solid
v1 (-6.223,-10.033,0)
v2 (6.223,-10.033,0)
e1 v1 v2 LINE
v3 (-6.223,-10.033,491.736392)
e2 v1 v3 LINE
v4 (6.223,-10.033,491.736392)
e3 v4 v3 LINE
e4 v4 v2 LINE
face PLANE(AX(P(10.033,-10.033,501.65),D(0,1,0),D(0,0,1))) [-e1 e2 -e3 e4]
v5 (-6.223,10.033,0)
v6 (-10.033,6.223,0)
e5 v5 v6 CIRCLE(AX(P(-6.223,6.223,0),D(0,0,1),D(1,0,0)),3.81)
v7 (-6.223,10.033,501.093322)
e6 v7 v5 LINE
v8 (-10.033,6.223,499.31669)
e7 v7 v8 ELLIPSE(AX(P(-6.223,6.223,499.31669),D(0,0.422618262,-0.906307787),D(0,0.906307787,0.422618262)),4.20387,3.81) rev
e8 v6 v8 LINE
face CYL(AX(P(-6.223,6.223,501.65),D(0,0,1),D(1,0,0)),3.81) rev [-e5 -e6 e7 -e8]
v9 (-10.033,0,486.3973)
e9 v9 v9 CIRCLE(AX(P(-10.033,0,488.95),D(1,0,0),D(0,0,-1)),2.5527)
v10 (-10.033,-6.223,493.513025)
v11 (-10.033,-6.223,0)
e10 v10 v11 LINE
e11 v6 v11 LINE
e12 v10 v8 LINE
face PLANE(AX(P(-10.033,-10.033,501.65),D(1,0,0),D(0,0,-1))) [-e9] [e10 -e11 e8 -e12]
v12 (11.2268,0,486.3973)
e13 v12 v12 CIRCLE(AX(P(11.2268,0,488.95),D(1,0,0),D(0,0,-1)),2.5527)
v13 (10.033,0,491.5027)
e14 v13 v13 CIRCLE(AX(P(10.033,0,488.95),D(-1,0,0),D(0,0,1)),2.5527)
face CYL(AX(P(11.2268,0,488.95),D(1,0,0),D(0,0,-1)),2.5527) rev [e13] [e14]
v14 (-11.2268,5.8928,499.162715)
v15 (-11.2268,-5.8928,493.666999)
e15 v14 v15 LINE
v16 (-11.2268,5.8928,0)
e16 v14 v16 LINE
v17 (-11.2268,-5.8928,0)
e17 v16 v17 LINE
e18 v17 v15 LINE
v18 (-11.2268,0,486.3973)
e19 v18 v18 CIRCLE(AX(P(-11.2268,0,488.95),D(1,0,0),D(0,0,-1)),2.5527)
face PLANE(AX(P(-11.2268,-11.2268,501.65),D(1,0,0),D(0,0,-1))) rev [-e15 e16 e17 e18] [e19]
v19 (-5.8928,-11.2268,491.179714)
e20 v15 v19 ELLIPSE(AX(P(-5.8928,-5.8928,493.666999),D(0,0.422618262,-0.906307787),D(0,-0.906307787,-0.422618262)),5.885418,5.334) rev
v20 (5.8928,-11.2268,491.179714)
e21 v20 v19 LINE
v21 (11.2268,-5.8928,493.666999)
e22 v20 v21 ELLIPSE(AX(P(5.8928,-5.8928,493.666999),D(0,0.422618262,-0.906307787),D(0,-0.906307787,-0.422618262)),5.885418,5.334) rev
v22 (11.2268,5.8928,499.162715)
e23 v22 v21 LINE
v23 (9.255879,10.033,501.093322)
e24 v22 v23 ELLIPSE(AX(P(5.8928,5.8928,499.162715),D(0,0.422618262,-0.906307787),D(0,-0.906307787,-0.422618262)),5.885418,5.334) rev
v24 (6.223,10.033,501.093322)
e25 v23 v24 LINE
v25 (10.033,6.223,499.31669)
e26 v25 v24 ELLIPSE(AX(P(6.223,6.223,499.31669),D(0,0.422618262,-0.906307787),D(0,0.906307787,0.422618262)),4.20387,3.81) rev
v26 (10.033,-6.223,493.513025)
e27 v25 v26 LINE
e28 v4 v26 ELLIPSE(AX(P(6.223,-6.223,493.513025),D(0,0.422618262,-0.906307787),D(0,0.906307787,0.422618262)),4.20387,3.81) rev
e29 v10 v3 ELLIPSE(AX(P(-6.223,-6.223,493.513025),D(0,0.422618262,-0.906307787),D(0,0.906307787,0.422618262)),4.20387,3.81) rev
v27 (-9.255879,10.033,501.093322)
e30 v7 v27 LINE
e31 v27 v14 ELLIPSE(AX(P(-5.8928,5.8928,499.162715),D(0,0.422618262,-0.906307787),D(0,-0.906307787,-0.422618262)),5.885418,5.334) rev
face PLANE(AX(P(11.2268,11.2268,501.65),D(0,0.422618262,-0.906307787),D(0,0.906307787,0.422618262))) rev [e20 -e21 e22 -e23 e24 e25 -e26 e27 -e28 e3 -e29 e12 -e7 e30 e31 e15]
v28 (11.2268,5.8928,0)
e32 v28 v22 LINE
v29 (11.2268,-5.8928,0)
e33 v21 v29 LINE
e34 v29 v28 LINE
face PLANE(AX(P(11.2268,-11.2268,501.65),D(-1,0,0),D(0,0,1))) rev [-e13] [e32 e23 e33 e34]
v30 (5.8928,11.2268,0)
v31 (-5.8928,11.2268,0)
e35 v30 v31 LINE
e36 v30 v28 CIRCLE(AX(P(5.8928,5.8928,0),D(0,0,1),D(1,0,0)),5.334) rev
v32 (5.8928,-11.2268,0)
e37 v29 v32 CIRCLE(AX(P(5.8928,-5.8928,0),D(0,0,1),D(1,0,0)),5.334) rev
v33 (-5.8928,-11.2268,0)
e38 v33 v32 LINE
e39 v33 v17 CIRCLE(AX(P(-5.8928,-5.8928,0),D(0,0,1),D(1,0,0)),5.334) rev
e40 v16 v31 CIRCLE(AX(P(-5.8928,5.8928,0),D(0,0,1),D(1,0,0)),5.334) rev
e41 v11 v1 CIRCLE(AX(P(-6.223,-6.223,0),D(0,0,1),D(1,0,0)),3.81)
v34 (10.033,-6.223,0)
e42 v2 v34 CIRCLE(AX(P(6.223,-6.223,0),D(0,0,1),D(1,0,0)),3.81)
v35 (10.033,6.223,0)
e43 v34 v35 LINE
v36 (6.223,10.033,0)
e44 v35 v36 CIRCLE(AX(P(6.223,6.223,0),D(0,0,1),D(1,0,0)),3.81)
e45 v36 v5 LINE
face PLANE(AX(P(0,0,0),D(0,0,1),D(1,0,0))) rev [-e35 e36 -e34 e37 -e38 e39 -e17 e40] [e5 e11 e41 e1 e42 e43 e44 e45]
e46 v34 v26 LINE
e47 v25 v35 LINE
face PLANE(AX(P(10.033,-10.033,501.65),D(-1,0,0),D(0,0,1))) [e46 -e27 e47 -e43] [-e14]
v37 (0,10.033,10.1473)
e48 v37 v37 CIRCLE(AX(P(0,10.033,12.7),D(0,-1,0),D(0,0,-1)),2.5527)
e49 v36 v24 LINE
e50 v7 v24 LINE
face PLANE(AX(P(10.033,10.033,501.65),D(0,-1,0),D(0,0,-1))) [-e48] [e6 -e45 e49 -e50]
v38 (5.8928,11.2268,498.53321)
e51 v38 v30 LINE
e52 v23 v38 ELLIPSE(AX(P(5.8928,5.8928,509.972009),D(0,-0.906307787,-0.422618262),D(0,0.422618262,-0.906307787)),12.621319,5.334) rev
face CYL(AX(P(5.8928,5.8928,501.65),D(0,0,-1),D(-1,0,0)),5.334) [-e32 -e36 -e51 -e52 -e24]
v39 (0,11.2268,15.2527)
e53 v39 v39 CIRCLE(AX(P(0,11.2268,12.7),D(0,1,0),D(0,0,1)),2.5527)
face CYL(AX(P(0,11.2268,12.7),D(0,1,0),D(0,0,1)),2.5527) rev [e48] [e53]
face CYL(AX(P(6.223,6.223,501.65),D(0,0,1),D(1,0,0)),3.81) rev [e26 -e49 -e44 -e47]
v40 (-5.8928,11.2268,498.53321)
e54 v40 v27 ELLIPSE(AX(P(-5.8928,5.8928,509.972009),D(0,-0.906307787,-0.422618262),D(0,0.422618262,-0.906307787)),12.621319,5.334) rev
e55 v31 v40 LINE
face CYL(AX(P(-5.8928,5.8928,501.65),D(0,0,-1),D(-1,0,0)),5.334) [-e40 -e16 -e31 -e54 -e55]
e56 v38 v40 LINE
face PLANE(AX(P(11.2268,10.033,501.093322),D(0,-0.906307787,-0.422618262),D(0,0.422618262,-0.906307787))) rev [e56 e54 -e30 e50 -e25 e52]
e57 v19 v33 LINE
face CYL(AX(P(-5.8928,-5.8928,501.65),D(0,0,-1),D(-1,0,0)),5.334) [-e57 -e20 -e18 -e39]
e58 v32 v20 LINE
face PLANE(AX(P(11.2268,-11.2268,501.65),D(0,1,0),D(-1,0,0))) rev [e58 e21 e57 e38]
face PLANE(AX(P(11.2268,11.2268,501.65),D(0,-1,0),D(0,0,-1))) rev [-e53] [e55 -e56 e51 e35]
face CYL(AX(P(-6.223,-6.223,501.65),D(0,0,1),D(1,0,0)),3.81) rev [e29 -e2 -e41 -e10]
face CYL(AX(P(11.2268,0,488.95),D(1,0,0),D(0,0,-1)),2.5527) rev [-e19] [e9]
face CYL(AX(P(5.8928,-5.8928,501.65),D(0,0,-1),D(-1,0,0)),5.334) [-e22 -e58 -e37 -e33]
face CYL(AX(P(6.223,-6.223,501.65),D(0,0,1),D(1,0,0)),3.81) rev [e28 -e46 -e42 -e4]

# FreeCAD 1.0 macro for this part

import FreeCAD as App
import Part
import Sketcher
from FreeCAD import Vector
Q = App.Units.Quantity


def edges_at(feature, points):
    """Names of the edges that pass closest to the given points."""
    edges = feature.Shape.Edges
    near = lambda p: min(range(len(edges)), key=lambda i: edges[i].distToShape(Part.Vertex(*p))[0])
    return sorted({f"Edge{near(p) + 1}" for p in points})


def add_polygon(sketch, points):
    """Adds a closed chain of lines whose ends are joined by coincident constraints."""
    first, n = sketch.GeometryCount, len(points)
    for a, b in zip(points, points[1:] + points[:1]):
        sketch.addGeometry(Part.LineSegment(App.Vector(*a, 0), App.Vector(*b, 0)), False)
    for i in range(n):
        sketch.addConstraint(Sketcher.Constraint("Coincident", first + i, 2, first + (i + 1) % n, 1))

doc = App.newDocument("Part")
body = doc.addObject("PartDesign::Body", "Body")

# Sketch on XY plane
sketch1 = body.newObject("Sketcher::SketchObject", "Sketch")
sketch1.AttachmentSupport = (doc.getObject("XY_Plane"), [""])
sketch1.MapMode = "FlatFace"
add_polygon(sketch1, [(-11.2268, 11.2268), (-11.2268, -11.2268), (11.2268, -11.2268), (11.2268, 11.2268)])  # lines 0-3
add_polygon(sketch1, [(10.033, -10.033), (-10.033, -10.033), (-10.033, 10.033), (10.033, 10.033)])  # lines 4-7
sketch1.addConstraint(Sketcher.Constraint("Vertical", 0))
sketch1.addConstraint(Sketcher.Constraint("Horizontal", 1))
sketch1.addConstraint(Sketcher.Constraint("Vertical", 2))
sketch1.addConstraint(Sketcher.Constraint("Horizontal", 3))
sketch1.addConstraint(Sketcher.Constraint("Horizontal", 4))
sketch1.addConstraint(Sketcher.Constraint("Vertical", 5))
sketch1.addConstraint(Sketcher.Constraint("Horizontal", 6))
sketch1.addConstraint(Sketcher.Constraint("Vertical", 7))
sketch1.addConstraint(Sketcher.Constraint("Symmetric", 0, 2, 2, 2, -1, 1))
sketch1.addConstraint(Sketcher.Constraint("Symmetric", 4, 2, 6, 2, -1, 1))
sketch1.addConstraint(Sketcher.Constraint("Equal", 3, 0))
sketch1.addConstraint(Sketcher.Constraint("Equal", 6, 5))
sketch1.addConstraint(Sketcher.Constraint("DistanceX", 4, 2, 4, 1, Q("0.79 in")))
sketch1.addConstraint(Sketcher.Constraint("DistanceX", 1, 1, 1, 2, Q("0.884 in")))
pad1 = body.newObject("PartDesign::Pad", "Pad")
pad1.Profile = sketch1
pad1.Length = Q("19.75 in")
doc.recompute()

fillet = body.newObject("PartDesign::Fillet", "Fillet")
fillet.Base = (pad1, edges_at(pad1, [
    (-10.033, 10.033, 250.825),
    (-10.033, -10.033, 250.825),
    (10.033, -10.033, 250.825),
    (10.033, 10.033, 250.825),
]))
fillet.Radius = Q("0.15 in")
doc.recompute()

fillet2 = body.newObject("PartDesign::Fillet", "Fillet001")
fillet2.Base = (fillet, edges_at(fillet, [
    (-11.227, 11.227, 250.825),
    (11.227, 11.227, 250.825),
    (11.227, -11.227, 250.825),
    (-11.227, -11.227, 250.825),
]))
fillet2.Radius = Q("0.21 in")

# Sketch on XZ plane
sketch2 = body.newObject("Sketcher::SketchObject", "Sketch001")
sketch2.AttachmentSupport = (doc.getObject("XZ_Plane"), [""])
sketch2.MapMode = "FlatFace"
sketch2.AttachmentOffset = App.Placement(Vector(0, 0, -0.442 * 25.4), App.Rotation())
sketch2.addGeometry(Part.Circle(Vector(0, 12.7, 0), Vector(0, 0, 1), 2.5527), False)
sketch2.addConstraint(Sketcher.Constraint("PointOnObject", 0, 3, -2))
sketch2.addConstraint(Sketcher.Constraint("Diameter", 0, Q("0.201 in")))
sketch2.addConstraint(Sketcher.Constraint("DistanceY", -1, 1, 0, 3, Q("0.5 in")))
doc.recompute()
hole = body.newObject("PartDesign::Hole", "Hole")
hole.Profile = sketch2
hole.ThreadType = "None"
hole.Diameter = Q("0.201 in")
hole.DepthType = "Dimension"
hole.Depth = Q("0.65 in")
hole.DrillPoint = "Angled"
hole.DrillPointAngle = 118
hole.Reversed = True

# Sketch on YZ plane
sketch3 = body.newObject("Sketcher::SketchObject", "Sketch002")
sketch3.AttachmentSupport = (doc.getObject("YZ_Plane"), [""])
sketch3.MapMode = "FlatFace"
sketch3.AttachmentOffset = App.Placement(Vector(0, 0, 0.442 * 25.4), App.Rotation())
sketch3.addGeometry(Part.Circle(Vector(0, 488.95, 0), Vector(0, 0, 1), 2.5527), False)
sketch3.addConstraint(Sketcher.Constraint("PointOnObject", 0, 3, -2))
sketch3.addConstraint(Sketcher.Constraint("Diameter", 0, Q("0.201 in")))
sketch3.addConstraint(Sketcher.Constraint("DistanceY", -1, 1, 0, 3, Q("19.25 in")))
doc.recompute()
hole2 = body.newObject("PartDesign::Hole", "Hole001")
hole2.Profile = sketch3
hole2.ThreadType = "None"
hole2.Diameter = Q("0.201 in")
hole2.DepthType = "ThroughAll"

# Sketch on YZ plane
sketch4 = body.newObject("Sketcher::SketchObject", "Sketch003")
sketch4.AttachmentSupport = (doc.getObject("YZ_Plane"), [""])
sketch4.MapMode = "FlatFace"
sketch4.AttachmentOffset = App.Placement(Vector(0, 0, -0.442 * 25.4), App.Rotation())
add_polygon(sketch4, [(11.2268, 501.65), (-11.2268, 491.179714), (-11.2268, 501.65)])  # lines 0-2
sketch4.addConstraint(Sketcher.Constraint("Vertical", 1))
sketch4.addConstraint(Sketcher.Constraint("Horizontal", 2))
sketch4.addConstraint(Sketcher.Constraint("Angle", 0, Q("-155 deg")))
sketch4.addConstraint(Sketcher.Constraint("DistanceX", 2, 1, 2, 2, Q("0.884 in")))
sketch4.addConstraint(Sketcher.Constraint("DistanceY", -1, 1, 1, 2, Q("19.75 in")))
sketch4.addConstraint(Sketcher.Constraint("DistanceX", 0, 2, -1, 1, Q("0.442 in")))
pocket1 = body.newObject("PartDesign::Pocket", "Pocket")
pocket1.Profile = sketch4
pocket1.Type = "ThroughAll"
pocket1.Reversed = True

# Sketch on YZ plane
sketch5 = body.newObject("Sketcher::SketchObject", "Sketch004")
sketch5.AttachmentSupport = (doc.getObject("YZ_Plane"), [""])
sketch5.MapMode = "FlatFace"
sketch5.AttachmentOffset = App.Placement(Vector(0, 0, -0.442 * 25.4), App.Rotation())
add_polygon(sketch5, [(11.2268, 501.65), (11.2268, 498.53321), (10.033, 501.093322)])  # lines 0-2
sketch5.addConstraint(Sketcher.Constraint("Vertical", 0))
sketch5.addConstraint(Sketcher.Constraint("Perpendicular", 1, 2))
sketch5.addConstraint(Sketcher.Constraint("Angle", 1, Q("115 deg")))
sketch5.addConstraint(Sketcher.Constraint("DistanceY", -1, 1, 2, 2, Q("19.75 in")))
sketch5.addConstraint(Sketcher.Constraint("DistanceX", -1, 1, 0, 2, Q("0.442 in")))
sketch5.addConstraint(Sketcher.Constraint("DistanceX", -1, 1, 1, 2, Q("0.395 in")))
pocket2 = body.newObject("PartDesign::Pocket", "Pocket001")
pocket2.Profile = sketch5
pocket2.Type = "ThroughAll"
pocket2.Reversed = True

doc.recompute()
